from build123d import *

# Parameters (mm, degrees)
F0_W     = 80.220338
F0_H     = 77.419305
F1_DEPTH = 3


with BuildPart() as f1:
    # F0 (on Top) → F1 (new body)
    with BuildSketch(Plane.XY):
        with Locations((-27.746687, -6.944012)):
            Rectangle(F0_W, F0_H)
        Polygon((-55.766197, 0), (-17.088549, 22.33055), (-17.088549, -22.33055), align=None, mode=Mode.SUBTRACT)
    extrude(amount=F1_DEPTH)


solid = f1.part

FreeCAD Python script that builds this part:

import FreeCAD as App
import Part
import Sketcher

V = App.Vector
Q = App.Units.Quantity

doc = App.newDocument("Part")
body = doc.addObject("PartDesign::Body", "Body")

# Sketch on XY plane
sketch1 = doc.addObject("Sketcher::SketchObject", "Sketch")
body.addObject(sketch1)
sketch1.AttachmentSupport = (doc.XY_Plane, [""])
sketch1.MapMode = "FlatFace"
sketch1.addGeometry(Part.LineSegment(V(-68, 32, 0), V(-68, -46, 0)), False)
sketch1.addGeometry(Part.LineSegment(V(-68, -46, 0), V(12, -46, 0)), False)
sketch1.addGeometry(Part.LineSegment(V(12, -46, 0), V(12, 32, 0)), False)
sketch1.addGeometry(Part.LineSegment(V(12, 32, 0), V(-68, 32, 0)), False)
sketch1.addGeometry(Part.LineSegment(V(-17, -22, 0), V(-56, 0, 0)), False)
sketch1.addGeometry(Part.LineSegment(V(-56, 0, 0), V(-17, 22, 0)), False)
sketch1.addGeometry(Part.LineSegment(V(-17, 22, 0), V(-17, -22, 0)), False)
sketch1.addConstraint(Sketcher.Constraint("Coincident", 0, 2, 1, 1))
sketch1.addConstraint(Sketcher.Constraint("Coincident", 1, 2, 2, 1))
sketch1.addConstraint(Sketcher.Constraint("Coincident", 2, 2, 3, 1))
sketch1.addConstraint(Sketcher.Constraint("Coincident", 3, 2, 0, 1))
sketch1.addConstraint(Sketcher.Constraint("Coincident", 4, 2, 5, 1))
sketch1.addConstraint(Sketcher.Constraint("Coincident", 5, 2, 6, 1))
sketch1.addConstraint(Sketcher.Constraint("Coincident", 6, 2, 4, 1))
sketch1.addConstraint(Sketcher.Constraint("Vertical", 0))
sketch1.addConstraint(Sketcher.Constraint("Horizontal", 1))
sketch1.addConstraint(Sketcher.Constraint("Vertical", 2))
sketch1.addConstraint(Sketcher.Constraint("Horizontal", 3))
sketch1.addConstraint(Sketcher.Constraint("Vertical", 6))
sketch1.addConstraint(Sketcher.Constraint("PointOnObject", 4, 2, -1))
sketch1.addConstraint(Sketcher.Constraint("Equal", 4, 5))
sketch1.addConstraint(Sketcher.Constraint("Angle", 4, Q("150.000001 deg")))
sketch1.addConstraint(Sketcher.Constraint("DistanceY", 6, 2, 6, 1, Q("44.6611 mm")))
sketch1.addConstraint(Sketcher.Constraint("DistanceX", 1, 1, 1, 2, Q("80.220338 mm")))
sketch1.addConstraint(Sketcher.Constraint("DistanceY", 0, 2, 0, 1, Q("77.419305 mm")))
sketch1.addConstraint(Sketcher.Constraint("DistanceY", -1, 1, 2, 2, Q("31.76564 mm")))
sketch1.addConstraint(Sketcher.Constraint("DistanceX", 5, 2, -1, 1, Q("17.088549 mm")))
sketch1.addConstraint(Sketcher.Constraint("DistanceX", 3, 2, 4, 2, Q("12.090659 mm")))
pad1 = doc.addObject("PartDesign::Pad", "Pad")
body.addObject(pad1)
pad1.Profile = sketch1
pad1.Length = 3

doc.recompute()
